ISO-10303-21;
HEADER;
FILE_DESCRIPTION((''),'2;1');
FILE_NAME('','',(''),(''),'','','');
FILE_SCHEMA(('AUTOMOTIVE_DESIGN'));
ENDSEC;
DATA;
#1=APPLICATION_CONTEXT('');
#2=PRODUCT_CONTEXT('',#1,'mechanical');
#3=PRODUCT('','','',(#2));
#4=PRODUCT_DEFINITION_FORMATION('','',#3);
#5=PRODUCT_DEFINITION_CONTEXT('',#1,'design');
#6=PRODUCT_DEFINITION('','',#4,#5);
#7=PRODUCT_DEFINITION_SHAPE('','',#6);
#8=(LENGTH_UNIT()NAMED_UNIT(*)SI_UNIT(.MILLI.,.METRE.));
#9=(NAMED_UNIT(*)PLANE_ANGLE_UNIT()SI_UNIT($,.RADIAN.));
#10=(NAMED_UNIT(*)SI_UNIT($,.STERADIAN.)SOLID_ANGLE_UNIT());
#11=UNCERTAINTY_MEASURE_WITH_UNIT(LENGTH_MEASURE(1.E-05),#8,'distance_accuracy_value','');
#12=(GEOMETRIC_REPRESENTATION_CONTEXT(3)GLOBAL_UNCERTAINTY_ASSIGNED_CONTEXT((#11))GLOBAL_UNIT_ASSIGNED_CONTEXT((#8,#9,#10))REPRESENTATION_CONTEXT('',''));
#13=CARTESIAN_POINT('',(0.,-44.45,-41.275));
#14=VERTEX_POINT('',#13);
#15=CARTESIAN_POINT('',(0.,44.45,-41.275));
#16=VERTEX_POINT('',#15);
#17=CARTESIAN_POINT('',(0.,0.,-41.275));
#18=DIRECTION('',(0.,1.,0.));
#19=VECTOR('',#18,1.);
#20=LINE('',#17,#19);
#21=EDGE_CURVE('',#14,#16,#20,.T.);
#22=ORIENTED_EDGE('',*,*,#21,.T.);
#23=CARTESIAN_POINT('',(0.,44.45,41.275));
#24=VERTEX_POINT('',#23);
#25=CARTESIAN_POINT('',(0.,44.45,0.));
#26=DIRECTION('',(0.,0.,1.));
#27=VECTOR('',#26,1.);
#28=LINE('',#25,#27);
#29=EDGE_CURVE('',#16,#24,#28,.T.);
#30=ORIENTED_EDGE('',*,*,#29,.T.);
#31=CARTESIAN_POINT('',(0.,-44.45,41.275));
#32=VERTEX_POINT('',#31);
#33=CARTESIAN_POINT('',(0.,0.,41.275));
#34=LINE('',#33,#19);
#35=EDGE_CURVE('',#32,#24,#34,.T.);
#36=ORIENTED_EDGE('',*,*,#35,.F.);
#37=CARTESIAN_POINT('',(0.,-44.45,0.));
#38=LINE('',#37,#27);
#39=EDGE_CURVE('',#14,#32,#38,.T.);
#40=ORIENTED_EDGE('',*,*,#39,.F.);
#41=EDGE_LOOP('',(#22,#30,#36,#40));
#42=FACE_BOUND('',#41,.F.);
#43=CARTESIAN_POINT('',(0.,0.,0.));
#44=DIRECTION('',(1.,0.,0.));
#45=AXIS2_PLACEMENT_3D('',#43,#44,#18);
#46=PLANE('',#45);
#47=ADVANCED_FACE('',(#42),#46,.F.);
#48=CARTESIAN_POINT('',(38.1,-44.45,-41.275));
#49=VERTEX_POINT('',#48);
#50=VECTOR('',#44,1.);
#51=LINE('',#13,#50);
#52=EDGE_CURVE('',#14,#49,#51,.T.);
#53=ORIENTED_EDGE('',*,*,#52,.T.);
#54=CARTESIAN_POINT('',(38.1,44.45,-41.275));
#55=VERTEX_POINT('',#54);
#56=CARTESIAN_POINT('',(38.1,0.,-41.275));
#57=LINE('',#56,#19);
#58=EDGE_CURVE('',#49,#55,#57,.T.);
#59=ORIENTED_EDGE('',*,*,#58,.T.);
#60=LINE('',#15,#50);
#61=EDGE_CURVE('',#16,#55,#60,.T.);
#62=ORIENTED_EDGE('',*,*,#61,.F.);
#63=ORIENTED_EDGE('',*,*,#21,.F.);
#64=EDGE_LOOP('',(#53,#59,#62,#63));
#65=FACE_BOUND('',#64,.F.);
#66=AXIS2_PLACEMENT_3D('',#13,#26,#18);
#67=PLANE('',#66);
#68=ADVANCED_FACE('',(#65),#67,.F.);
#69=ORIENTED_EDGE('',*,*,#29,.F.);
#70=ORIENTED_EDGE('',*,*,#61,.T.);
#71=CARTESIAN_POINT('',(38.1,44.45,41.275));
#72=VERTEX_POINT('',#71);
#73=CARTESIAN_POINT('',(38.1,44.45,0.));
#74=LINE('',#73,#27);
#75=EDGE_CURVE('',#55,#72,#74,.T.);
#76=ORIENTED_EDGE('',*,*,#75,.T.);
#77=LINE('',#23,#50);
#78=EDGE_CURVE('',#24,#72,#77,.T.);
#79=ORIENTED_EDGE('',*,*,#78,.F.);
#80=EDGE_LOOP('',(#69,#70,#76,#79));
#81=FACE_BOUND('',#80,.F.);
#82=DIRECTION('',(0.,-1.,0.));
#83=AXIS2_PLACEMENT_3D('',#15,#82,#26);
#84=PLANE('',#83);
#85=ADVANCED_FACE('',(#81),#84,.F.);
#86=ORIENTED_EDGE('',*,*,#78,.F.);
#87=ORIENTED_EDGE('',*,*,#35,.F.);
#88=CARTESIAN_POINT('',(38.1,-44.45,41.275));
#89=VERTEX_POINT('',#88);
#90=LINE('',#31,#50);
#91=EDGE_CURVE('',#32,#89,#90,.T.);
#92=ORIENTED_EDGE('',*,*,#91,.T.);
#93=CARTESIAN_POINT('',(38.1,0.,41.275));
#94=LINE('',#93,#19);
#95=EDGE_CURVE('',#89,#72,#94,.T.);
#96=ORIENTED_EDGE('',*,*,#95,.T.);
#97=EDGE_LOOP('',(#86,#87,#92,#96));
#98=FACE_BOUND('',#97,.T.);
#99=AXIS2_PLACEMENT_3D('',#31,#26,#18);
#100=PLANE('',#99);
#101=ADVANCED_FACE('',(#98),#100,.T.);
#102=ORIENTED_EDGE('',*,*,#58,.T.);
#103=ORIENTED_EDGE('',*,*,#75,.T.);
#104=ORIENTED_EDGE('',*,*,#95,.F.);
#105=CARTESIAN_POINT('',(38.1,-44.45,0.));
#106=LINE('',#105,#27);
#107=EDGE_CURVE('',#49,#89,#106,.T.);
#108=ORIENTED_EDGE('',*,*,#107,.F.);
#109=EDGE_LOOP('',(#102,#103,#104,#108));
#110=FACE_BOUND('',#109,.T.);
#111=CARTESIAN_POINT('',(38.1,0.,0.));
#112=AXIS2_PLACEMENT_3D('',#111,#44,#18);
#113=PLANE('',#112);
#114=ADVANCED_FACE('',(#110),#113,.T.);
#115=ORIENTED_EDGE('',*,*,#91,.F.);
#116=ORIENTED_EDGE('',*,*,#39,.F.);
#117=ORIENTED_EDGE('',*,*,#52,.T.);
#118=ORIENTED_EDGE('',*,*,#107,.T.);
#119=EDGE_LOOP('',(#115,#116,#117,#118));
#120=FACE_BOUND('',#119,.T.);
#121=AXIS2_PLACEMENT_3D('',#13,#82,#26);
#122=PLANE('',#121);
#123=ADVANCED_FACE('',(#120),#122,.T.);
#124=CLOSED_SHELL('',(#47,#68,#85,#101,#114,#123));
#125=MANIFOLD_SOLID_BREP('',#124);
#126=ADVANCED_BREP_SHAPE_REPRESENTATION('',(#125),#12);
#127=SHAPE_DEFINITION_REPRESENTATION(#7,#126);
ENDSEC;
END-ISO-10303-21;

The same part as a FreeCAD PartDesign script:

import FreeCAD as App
import Part
import Sketcher

V = App.Vector
Q = App.Units.Quantity


def add_polygon(sketch, points):
    """Adds a closed chain of lines whose ends are joined by coincident constraints."""
    first, n = sketch.GeometryCount, len(points)
    for a, b in zip(points, points[1:] + points[:1]):
        sketch.addGeometry(Part.LineSegment(App.Vector(*a, 0), App.Vector(*b, 0)), False)
    for i in range(n):
        sketch.addConstraint(Sketcher.Constraint("Coincident", first + i, 2, first + (i + 1) % n, 1))

doc = App.newDocument("Part")
params = doc.addObject("Spreadsheet::Sheet", "Params")
for row, (alias, value) in enumerate([
    ("sketch1_width", "3.5 in"),
    ("sketch1_height", "1.5 in"),
    ("pad1_length", "3.25 in"),
    ("sketch2_width", "3.5 in"),
    ("sketch2_height", "3.25 in"),
    ("pad2_length", "1.5 in"),
], start=1):
    params.set(f"A{row}", alias)
    params.set(f"B{row}", "=" + value)
    params.setAlias(f"B{row}", alias)

body = doc.addObject("PartDesign::Body", "Body")

sketch1 = body.newObject("Sketcher::SketchObject", "Sketch")
sketch1.AttachmentSupport = (doc.getObject("XY_Plane"), [""])
sketch1.MapMode = "FlatFace"
add_polygon(sketch1, [(-44, 19), (-44, -19), (44, -19), (44, 19)])
sketch1.addConstraint([
    Sketcher.Constraint("Vertical", 0),
    Sketcher.Constraint("Horizontal", 1),
    Sketcher.Constraint("Vertical", 2),
    Sketcher.Constraint("Horizontal", 3),
    Sketcher.Constraint("Symmetric", 0, 2, 2, 2, -1, 1),
    Sketcher.Constraint("DistanceX", 1, 1, 1, 2, Q("3.5 in")),
    Sketcher.Constraint("DistanceY", 0, 2, 0, 1, Q("1.5 in")),
])
sketch1.setExpression("Constraints[9]", "Params.sketch1_width")
sketch1.setExpression("Constraints[10]", "Params.sketch1_height")
pad1 = body.newObject("PartDesign::Pad", "Pad")
pad1.Profile = sketch1
pad1.setExpression("Length", "Params.pad1_length")
body2 = doc.addObject("PartDesign::Body", "Body001")

sketch2 = body2.newObject("Sketcher::SketchObject", "Sketch001")
sketch2.AttachmentSupport = (doc.getObject("YZ_Plane001"), [""])
sketch2.MapMode = "FlatFace"
add_polygon(sketch2, [(-44, 41), (-44, -41), (44, -41), (44, 41)])
sketch2.addConstraint([
    Sketcher.Constraint("Vertical", 0),
    Sketcher.Constraint("Horizontal", 1),
    Sketcher.Constraint("Vertical", 2),
    Sketcher.Constraint("Horizontal", 3),
    Sketcher.Constraint("Symmetric", 0, 2, 2, 2, -1, 1),
    Sketcher.Constraint("DistanceX", 1, 1, 1, 2, Q("3.5 in")),
    Sketcher.Constraint("DistanceY", 0, 2, 0, 1, Q("3.25 in")),
])
sketch2.setExpression("Constraints[9]", "Params.sketch2_width")
sketch2.setExpression("Constraints[10]", "Params.sketch2_height")
pad2 = body2.newObject("PartDesign::Pad", "Pad001")
pad2.Profile = sketch2
pad2.setExpression("Length", "Params.pad2_length")
body.Visibility = False

doc.recompute()
